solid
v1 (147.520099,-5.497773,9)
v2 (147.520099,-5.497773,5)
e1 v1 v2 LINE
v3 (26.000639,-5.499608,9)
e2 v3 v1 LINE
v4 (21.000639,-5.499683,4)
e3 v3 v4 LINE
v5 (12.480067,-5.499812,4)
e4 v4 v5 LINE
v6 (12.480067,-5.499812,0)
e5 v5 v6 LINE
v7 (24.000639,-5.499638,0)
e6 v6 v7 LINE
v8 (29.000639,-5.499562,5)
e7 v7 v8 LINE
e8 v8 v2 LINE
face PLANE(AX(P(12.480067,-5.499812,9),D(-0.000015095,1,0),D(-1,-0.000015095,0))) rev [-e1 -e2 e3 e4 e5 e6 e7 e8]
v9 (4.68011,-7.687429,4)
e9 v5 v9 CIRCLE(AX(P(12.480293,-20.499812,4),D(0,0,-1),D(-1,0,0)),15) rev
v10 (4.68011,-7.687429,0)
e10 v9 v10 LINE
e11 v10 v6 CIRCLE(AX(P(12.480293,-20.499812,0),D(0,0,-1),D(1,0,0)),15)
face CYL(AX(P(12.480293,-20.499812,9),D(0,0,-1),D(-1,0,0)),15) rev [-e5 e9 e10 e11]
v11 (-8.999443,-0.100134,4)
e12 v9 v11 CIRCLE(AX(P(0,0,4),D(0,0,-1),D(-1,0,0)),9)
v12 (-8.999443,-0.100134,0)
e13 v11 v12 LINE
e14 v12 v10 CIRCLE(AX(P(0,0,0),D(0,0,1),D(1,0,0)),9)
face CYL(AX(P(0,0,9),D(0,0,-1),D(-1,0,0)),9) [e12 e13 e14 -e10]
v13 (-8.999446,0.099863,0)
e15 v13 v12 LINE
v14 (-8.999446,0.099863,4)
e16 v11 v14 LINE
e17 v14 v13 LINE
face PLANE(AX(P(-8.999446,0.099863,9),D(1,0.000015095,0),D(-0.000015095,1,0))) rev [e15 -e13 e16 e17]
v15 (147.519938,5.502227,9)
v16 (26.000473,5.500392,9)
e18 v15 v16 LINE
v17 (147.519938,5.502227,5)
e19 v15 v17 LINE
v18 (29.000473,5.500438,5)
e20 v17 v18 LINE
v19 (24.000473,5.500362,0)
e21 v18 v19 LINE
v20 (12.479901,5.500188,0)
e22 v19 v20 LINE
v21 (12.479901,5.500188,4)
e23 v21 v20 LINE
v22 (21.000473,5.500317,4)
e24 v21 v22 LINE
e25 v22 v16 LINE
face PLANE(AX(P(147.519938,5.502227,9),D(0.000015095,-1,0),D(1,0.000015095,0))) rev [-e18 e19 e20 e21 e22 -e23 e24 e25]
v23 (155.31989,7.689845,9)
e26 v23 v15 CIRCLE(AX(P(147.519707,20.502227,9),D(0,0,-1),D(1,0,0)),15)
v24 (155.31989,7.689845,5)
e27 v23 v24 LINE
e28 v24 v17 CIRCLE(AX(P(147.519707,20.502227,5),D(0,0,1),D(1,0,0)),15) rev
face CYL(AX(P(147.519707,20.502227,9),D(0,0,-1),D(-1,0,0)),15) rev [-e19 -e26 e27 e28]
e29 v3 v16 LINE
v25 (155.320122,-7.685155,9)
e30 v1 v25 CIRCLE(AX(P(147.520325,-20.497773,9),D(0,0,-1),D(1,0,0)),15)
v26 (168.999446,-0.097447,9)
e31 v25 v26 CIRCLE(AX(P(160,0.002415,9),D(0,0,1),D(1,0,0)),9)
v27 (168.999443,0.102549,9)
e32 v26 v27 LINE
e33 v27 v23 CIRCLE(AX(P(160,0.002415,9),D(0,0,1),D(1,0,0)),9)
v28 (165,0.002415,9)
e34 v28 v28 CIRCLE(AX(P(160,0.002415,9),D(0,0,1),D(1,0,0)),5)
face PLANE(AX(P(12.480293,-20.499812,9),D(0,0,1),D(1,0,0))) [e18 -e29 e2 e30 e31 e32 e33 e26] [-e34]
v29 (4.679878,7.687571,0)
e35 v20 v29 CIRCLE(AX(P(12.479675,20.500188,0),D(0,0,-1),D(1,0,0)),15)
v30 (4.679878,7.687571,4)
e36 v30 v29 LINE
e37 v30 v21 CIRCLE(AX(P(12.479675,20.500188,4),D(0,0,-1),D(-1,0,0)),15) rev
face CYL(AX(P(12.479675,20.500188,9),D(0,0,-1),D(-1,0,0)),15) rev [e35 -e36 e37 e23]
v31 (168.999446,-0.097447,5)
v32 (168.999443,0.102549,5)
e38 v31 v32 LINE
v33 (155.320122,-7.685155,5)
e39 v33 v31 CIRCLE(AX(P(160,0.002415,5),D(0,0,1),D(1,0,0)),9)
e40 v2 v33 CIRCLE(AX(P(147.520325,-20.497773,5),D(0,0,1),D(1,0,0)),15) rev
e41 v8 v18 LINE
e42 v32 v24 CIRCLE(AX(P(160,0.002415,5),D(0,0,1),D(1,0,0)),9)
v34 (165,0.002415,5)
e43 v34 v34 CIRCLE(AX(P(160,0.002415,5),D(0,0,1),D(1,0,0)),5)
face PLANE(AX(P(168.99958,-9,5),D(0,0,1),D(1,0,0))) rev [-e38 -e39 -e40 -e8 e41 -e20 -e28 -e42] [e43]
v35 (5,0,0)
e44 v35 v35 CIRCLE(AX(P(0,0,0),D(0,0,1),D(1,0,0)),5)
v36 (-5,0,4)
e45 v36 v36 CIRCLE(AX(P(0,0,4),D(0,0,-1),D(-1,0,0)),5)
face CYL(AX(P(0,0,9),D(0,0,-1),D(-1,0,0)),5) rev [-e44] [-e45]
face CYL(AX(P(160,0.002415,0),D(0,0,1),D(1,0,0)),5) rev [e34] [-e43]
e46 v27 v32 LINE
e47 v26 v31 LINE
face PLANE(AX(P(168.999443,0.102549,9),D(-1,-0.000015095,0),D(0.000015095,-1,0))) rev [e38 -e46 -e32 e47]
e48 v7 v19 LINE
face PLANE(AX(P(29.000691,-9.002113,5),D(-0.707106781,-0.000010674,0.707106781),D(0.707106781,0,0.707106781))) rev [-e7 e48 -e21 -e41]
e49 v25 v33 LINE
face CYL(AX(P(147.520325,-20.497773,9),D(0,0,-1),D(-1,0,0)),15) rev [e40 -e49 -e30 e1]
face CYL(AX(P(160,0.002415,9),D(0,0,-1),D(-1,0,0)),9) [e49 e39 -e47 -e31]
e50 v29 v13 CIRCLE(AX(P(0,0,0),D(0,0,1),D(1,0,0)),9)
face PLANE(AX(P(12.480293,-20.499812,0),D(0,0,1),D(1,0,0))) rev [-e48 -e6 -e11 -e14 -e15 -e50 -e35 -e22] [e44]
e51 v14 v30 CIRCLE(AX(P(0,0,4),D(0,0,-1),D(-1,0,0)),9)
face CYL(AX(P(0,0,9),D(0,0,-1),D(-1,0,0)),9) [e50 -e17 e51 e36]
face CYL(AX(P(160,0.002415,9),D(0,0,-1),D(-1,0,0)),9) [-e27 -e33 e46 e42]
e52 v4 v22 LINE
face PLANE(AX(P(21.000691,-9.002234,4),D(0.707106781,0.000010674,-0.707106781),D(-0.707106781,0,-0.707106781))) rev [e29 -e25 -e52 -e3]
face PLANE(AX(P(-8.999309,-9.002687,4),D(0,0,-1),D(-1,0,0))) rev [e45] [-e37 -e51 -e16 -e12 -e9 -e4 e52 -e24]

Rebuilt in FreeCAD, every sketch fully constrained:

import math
import FreeCAD as App
import Part
import Sketcher

V = App.Vector
Q = App.Units.Quantity


def add_polygon(sketch, points):
    """Adds a closed chain of lines whose ends are joined by coincident constraints."""
    first, n = sketch.GeometryCount, len(points)
    for a, b in zip(points, points[1:] + points[:1]):
        sketch.addGeometry(Part.LineSegment(App.Vector(*a, 0), App.Vector(*b, 0)), False)
    for i in range(n):
        sketch.addConstraint(Sketcher.Constraint("Coincident", first + i, 2, first + (i + 1) % n, 1))

doc = App.newDocument("Part")
body = doc.addObject("PartDesign::Body", "Body")

# Sketch on XY plane
sketch1 = body.newObject("Sketcher::SketchObject", "Sketch")
sketch1.AttachmentSupport = (doc.getObject("XY_Plane"), [""])
sketch1.MapMode = "FlatFace"
sketch1.addGeometry([
    Part.LineSegment(V(147.519938, 5.502227, 0), V(12.479901, 5.500188, 0)),  # 0
    Part.ArcOfCircle(Part.Circle(V(12.479675, 20.500188, 0), V(0, 0, 1), 15), math.radians(-121.331342), math.radians(-89.999135)),  # 1
    Part.ArcOfCircle(Part.Circle(V(0, 0, 0), V(0, 0, 1), 9), math.radians(58.668658), math.radians(179.364242)),  # 2
    Part.LineSegment(V(-8.999446, 0.099863, 0), V(-8.999443, -0.100134, 0)),  # 3
    Part.ArcOfCircle(Part.Circle(V(0, 0, 0), V(0, 0, 1), 9), math.radians(-179.362512), math.radians(-58.666928)),  # 4
    Part.ArcOfCircle(Part.Circle(V(12.480293, -20.499812, 0), V(0, 0, 1), 15), math.radians(90.000865), math.radians(121.333072)),  # 5
    Part.LineSegment(V(12.480067, -5.499812, 0), V(147.520099, -5.497773, 0)),  # 6
    Part.ArcOfCircle(Part.Circle(V(147.520325, -20.497773, 0), V(0, 0, 1), 15), math.radians(58.668658), math.radians(90.000865)),  # 7
    Part.ArcOfCircle(Part.Circle(V(160, 0.002415, 0), V(0, 0, 1), 9), math.radians(-121.331342), math.radians(-0.635758)),  # 8
    Part.LineSegment(V(168.999446, -0.097447, 0), V(168.999443, 0.102549, 0)),  # 9
    Part.ArcOfCircle(Part.Circle(V(160, 0.002415, 0), V(0, 0, 1), 9), math.radians(0.637488), math.radians(121.333072)),  # 10
    Part.ArcOfCircle(Part.Circle(V(147.519707, 20.502227, 0), V(0, 0, 1), 15), math.radians(-89.999118), math.radians(-58.666929)),  # 11
    Part.Circle(V(0, 0, 0), V(0, 0, 1), 5),  # 12
    Part.Circle(V(160, 0.002415, 0), V(0, 0, 1), 2),  # 13
], False)
sketch1.addConstraint([
    Sketcher.Constraint("Tangent", 0, 2, 1, 2),
    Sketcher.Constraint("Tangent", 1, 1, 2, 1),
    Sketcher.Constraint("Coincident", 2, 2, 3, 1),
    Sketcher.Constraint("Coincident", 3, 2, 4, 1),
    Sketcher.Constraint("Tangent", 4, 2, 5, 2),
    Sketcher.Constraint("Tangent", 5, 1, 6, 1),
    Sketcher.Constraint("Tangent", 6, 2, 7, 2),
    Sketcher.Constraint("Tangent", 7, 1, 8, 1),
    Sketcher.Constraint("Coincident", 8, 2, 9, 1),
    Sketcher.Constraint("Coincident", 9, 2, 10, 1),
    Sketcher.Constraint("Tangent", 10, 2, 11, 2),
    Sketcher.Constraint("Tangent", 11, 1, 0, 1),
    Sketcher.Constraint("Coincident", 2, 3, -1, 1),
    Sketcher.Constraint("Coincident", 4, 3, -1, 1),
    Sketcher.Constraint("Coincident", 12, 3, -1, 1),
    Sketcher.Constraint("Coincident", 10, 3, 8, 3),
    Sketcher.Constraint("Coincident", 13, 3, 8, 3),
    Sketcher.Constraint("Equal", 2, 4),
    Sketcher.Constraint("Equal", 1, 5),
    Sketcher.Constraint("Equal", 5, 7),
    Sketcher.Constraint("Equal", 4, 8),
    Sketcher.Constraint("Equal", 8, 10),
    Sketcher.Constraint("Equal", 7, 11),
    Sketcher.Constraint("Perpendicular", 0, 3),
    Sketcher.Constraint("Parallel", 0, 6),
    Sketcher.Constraint("Perpendicular", 6, 9),
    Sketcher.Constraint("Equal", 3, 9),
    Sketcher.Constraint("Diameter", 12, Q("10 mm")),
    Sketcher.Constraint("Diameter", 13, Q("4 mm")),
    Sketcher.Constraint("Radius", 1, Q("15 mm")),
    Sketcher.Constraint("Radius", 2, Q("9 mm")),
    Sketcher.Constraint("DistanceX", -1, 1, 8, 3, Q("160 mm")),
    Sketcher.Constraint("DistanceY", 5, 3, 1, 3, Q("41 mm")),
    Sketcher.Constraint("DistanceX", -1, 1, 0, 2, Q("12.479901 mm")),
    Sketcher.Constraint("DistanceX", -1, 1, 6, 2, Q("147.520099 mm")),
    Sketcher.Constraint("DistanceY", -1, 1, 1, 3, Q("20.500188 mm")),
    Sketcher.Constraint("DistanceY", -1, 1, 9, 2, Q("0.102549 mm")),
])
pad1 = body.newObject("PartDesign::Pad", "Pad")
pad1.Profile = sketch1
pad1.Length = 9

# Sketch on XZ plane
sketch2 = body.newObject("Sketcher::SketchObject", "Sketch001")
sketch2.AttachmentSupport = (doc.getObject("XZ_Plane"), [""])
sketch2.MapMode = "FlatFace"
sketch2.AttachmentOffset = App.Placement(V(0, 0, -5.5), App.Rotation())
add_polygon(sketch2, [(26.000473, 9), (21.000473, 4), (-8.999527, 4), (-8.999527, 9)])  # lines 0-3
add_polygon(sketch2, [(24.000473, 0), (29.000473, 5), (168.999361, 5), (168.999361, 0)])  # lines 4-7
sketch2.addConstraint([
    Sketcher.Constraint("Horizontal", 1),
    Sketcher.Constraint("Vertical", 2),
    Sketcher.Constraint("Horizontal", 3),
    Sketcher.Constraint("Horizontal", 5),
    Sketcher.Constraint("Vertical", 6),
    Sketcher.Constraint("Horizontal", 7),
    Sketcher.Constraint("PointOnObject", 6, 2, -1),
    Sketcher.Constraint("Parallel", 0, 4),
    Sketcher.Constraint("Equal", 2, 6),
    Sketcher.Constraint("DistanceX", 1, 2, 1, 1, Q("30 mm")),
    Sketcher.Constraint("DistanceX", 3, 1, 3, 2, Q("35 mm")),
    Sketcher.Constraint("DistanceY", 2, 1, 2, 2, Q("5 mm")),
    Sketcher.Constraint("DistanceY", -1, 1, 0, 2, Q("4 mm")),
    Sketcher.Constraint("DistanceX", 3, 2, 4, 2, Q("3 mm")),
    Sketcher.Constraint("DistanceX", 5, 1, 5, 2, Q("139.998889 mm")),
    Sketcher.Constraint("DistanceX", -1, 1, 5, 2, Q("168.999361 mm")),
])
pocket1 = body.newObject("PartDesign::Pocket", "Pocket")
pocket1.Profile = sketch2
pocket1.Type = "ThroughAll"
pocket1.Midplane = True

# Sketch on XY plane
sketch3 = body.newObject("Sketcher::SketchObject", "Sketch002")
sketch3.AttachmentSupport = (doc.getObject("XY_Plane"), [""])
sketch3.MapMode = "FlatFace"
sketch3.AttachmentOffset = App.Placement(V(0, 0, 9), App.Rotation())
sketch3.addGeometry(Part.Circle(V(160, 0.002415, 0), V(0, 0, 1), 5), False)
sketch3.addConstraint([
    Sketcher.Constraint("Diameter", 0, Q("10 mm")),
    Sketcher.Constraint("DistanceX", -1, 1, 0, 3, Q("160 mm")),
    Sketcher.Constraint("DistanceY", -1, 1, 0, 3, Q("0.002415 mm")),
])
pocket2 = body.newObject("PartDesign::Pocket", "Pocket001")
pocket2.Profile = sketch3
pocket2.Type = "ThroughAll"

doc.recompute()
